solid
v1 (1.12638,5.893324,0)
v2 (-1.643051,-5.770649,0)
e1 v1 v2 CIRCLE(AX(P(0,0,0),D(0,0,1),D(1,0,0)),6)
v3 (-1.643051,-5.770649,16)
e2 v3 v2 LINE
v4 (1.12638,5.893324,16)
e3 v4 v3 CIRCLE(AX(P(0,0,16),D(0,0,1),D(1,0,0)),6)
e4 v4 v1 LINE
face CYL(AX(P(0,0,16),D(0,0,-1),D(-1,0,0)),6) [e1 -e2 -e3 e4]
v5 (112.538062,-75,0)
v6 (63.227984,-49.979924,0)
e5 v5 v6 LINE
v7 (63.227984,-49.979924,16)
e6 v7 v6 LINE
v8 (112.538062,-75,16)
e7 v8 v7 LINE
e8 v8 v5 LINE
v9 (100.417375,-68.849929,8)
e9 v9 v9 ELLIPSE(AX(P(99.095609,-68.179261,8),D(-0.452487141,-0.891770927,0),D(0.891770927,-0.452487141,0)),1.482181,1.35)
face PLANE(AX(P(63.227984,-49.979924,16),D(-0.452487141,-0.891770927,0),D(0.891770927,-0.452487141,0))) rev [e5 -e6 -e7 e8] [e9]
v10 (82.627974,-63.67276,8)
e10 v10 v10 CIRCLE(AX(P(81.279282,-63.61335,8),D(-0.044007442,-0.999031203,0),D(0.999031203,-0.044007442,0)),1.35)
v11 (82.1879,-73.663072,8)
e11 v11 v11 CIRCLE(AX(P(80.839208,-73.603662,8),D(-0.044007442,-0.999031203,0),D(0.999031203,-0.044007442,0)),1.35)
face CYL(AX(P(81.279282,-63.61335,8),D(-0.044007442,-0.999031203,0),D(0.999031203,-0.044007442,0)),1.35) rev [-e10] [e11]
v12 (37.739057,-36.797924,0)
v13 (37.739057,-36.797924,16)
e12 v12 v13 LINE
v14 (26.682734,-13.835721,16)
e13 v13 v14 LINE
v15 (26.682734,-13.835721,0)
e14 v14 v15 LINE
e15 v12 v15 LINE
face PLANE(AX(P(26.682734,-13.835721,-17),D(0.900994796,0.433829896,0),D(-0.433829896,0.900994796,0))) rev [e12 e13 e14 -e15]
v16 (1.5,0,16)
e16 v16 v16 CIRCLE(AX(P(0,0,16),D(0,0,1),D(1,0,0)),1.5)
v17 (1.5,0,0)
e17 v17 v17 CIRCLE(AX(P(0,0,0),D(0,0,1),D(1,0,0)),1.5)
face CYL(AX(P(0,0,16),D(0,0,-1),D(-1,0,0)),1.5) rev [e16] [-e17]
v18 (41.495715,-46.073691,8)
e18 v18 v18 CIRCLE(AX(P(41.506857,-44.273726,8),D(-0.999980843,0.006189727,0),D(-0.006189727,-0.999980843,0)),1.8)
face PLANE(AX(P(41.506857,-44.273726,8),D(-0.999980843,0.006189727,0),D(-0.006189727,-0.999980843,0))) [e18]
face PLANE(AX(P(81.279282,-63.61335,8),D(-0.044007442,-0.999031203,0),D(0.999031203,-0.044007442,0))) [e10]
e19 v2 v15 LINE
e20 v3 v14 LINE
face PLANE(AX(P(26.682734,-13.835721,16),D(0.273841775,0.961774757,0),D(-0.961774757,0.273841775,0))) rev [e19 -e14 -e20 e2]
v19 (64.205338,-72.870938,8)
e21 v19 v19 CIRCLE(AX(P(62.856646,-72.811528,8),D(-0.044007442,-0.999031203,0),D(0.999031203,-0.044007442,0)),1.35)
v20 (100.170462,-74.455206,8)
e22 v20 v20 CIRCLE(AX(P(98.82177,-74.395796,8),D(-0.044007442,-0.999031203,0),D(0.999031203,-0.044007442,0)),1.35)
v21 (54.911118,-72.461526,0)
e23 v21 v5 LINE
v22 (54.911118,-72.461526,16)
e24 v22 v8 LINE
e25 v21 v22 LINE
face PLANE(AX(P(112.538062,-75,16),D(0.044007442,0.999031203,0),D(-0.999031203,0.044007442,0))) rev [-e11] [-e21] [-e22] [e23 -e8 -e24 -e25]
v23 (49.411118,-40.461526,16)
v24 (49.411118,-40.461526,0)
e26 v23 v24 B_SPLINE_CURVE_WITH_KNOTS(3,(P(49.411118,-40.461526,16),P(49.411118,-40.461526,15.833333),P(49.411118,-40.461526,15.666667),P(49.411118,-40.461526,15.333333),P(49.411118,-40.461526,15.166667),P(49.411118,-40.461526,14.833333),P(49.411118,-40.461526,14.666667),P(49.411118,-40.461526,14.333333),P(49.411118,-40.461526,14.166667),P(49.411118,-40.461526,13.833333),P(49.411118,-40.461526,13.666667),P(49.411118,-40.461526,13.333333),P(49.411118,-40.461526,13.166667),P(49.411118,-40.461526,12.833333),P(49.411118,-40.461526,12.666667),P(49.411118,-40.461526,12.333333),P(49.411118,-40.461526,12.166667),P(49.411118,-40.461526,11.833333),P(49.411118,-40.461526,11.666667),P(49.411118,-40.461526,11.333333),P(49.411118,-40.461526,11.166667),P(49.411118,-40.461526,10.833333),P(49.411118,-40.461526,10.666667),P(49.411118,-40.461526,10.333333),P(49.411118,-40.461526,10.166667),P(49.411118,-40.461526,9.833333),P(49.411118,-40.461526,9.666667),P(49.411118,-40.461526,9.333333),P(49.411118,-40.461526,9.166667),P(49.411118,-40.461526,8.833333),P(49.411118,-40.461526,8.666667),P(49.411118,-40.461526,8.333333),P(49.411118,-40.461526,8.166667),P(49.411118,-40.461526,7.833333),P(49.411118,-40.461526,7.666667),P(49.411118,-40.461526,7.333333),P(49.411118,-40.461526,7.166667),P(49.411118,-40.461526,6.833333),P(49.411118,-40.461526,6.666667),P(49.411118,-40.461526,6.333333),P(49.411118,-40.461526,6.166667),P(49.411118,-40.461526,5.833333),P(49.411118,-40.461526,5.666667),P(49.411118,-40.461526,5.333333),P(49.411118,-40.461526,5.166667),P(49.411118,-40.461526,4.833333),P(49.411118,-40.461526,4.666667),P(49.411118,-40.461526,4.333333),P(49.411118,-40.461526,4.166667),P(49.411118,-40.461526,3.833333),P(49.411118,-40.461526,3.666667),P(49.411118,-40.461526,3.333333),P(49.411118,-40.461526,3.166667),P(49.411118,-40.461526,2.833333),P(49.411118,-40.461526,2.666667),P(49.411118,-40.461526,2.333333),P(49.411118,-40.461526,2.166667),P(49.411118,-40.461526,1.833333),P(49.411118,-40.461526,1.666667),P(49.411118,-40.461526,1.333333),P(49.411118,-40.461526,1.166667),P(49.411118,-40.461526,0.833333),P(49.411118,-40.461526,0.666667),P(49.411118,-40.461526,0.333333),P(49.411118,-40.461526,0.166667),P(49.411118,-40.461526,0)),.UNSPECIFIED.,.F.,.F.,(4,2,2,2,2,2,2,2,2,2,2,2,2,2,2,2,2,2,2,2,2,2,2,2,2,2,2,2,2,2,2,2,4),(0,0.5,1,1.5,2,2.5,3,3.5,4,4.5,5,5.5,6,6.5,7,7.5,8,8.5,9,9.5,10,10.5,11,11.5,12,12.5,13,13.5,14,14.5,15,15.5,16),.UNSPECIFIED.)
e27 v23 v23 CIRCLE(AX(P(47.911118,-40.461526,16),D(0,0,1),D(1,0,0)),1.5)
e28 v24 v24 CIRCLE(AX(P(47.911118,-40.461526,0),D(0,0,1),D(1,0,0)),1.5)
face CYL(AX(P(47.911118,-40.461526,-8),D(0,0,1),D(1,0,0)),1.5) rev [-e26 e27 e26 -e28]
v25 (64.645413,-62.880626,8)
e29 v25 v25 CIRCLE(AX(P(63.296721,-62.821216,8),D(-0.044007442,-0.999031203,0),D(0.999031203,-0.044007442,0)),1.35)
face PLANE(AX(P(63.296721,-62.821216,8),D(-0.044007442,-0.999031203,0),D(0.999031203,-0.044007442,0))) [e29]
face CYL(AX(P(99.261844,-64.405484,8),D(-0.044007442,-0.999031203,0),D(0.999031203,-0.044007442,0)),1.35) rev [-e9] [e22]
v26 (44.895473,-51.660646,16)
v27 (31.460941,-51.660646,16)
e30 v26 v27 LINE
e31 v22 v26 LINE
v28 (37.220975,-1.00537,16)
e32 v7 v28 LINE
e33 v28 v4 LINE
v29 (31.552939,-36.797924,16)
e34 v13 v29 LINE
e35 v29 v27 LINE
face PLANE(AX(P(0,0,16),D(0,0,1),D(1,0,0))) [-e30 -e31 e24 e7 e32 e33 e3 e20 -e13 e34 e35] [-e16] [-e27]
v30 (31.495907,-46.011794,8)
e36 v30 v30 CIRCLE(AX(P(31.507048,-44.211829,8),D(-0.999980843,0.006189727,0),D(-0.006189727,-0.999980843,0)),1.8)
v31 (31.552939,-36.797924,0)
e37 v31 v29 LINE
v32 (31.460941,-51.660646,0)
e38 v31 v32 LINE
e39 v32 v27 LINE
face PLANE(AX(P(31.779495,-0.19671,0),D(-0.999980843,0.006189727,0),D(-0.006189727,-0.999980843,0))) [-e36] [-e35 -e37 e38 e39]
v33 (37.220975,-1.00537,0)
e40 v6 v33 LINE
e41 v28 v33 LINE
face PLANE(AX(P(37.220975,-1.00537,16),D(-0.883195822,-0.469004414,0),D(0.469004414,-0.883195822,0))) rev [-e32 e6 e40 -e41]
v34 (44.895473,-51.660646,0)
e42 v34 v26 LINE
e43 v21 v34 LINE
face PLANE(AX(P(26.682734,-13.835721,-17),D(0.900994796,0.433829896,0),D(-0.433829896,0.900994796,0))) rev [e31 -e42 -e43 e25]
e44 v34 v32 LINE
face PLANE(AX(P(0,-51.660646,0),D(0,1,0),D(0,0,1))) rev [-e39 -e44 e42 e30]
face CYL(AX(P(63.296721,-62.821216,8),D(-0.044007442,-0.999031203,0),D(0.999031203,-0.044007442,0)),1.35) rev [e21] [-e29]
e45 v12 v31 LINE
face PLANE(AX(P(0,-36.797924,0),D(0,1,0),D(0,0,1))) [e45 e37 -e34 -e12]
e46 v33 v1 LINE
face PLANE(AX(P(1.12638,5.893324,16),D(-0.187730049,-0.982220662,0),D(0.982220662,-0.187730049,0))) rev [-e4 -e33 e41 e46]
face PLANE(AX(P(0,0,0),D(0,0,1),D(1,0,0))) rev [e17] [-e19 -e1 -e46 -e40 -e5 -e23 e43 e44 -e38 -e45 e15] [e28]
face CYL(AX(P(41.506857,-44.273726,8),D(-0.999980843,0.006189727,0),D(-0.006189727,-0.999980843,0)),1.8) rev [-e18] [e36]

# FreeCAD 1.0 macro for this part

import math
import FreeCAD as App
import Part
import Sketcher

doc = App.newDocument("Part")
body = doc.addObject("PartDesign::Body", "Body")

# Sketch on XY plane
sketch1 = doc.addObject("Sketcher::SketchObject", "Sketch")
body.addObject(sketch1)
sketch1.AttachmentSupport = (doc.XY_Plane, [""])
sketch1.MapMode = "FlatFace"
sketch1.addGeometry(Part.LineSegment(App.Vector(37.220975, -1.00537, 0), App.Vector(1.12638, 5.893324, 0)), False)
sketch1.addGeometry(Part.ArcOfCircle(Part.Circle(App.Vector(0, 0, 0), App.Vector(0, 0, 1), 6), math.radians(79.179658), math.radians(254.106997)), False)
sketch1.addGeometry(Part.LineSegment(App.Vector(-1.643051, -5.770649, 0), App.Vector(26.682734, -13.835721, 0)), False)
sketch1.addGeometry(Part.LineSegment(App.Vector(26.682734, -13.835721, 0), App.Vector(49.915442, -64.887383, 0)), False)
sketch1.addGeometry(Part.LineSegment(App.Vector(49.915442, -64.887383, 0), App.Vector(53.330617, -72.391905, 0)), False)
sketch1.addGeometry(Part.LineSegment(App.Vector(53.330617, -72.391905, 0), App.Vector(112.538062, -75, 0)), False)
sketch1.addGeometry(Part.LineSegment(App.Vector(112.538062, -75, 0), App.Vector(63.227984, -49.979924, 0)), False)
sketch1.addGeometry(Part.LineSegment(App.Vector(63.227984, -49.979924, 0), App.Vector(37.220975, -1.00537, 0)), False)
sketch1.addGeometry(Part.Circle(App.Vector(0, 0, 0), App.Vector(0, 0, 1), 1.5), False)
sketch1.addConstraint(Sketcher.Constraint("Tangent", 0, 2, 1, 1))
sketch1.addConstraint(Sketcher.Constraint("Tangent", 1, 2, 2, 1))
sketch1.addConstraint(Sketcher.Constraint("Coincident", 2, 2, 3, 1))
sketch1.addConstraint(Sketcher.Constraint("Coincident", 3, 2, 4, 1))
sketch1.addConstraint(Sketcher.Constraint("Coincident", 4, 2, 5, 1))
sketch1.addConstraint(Sketcher.Constraint("Coincident", 5, 2, 6, 1))
sketch1.addConstraint(Sketcher.Constraint("Coincident", 6, 2, 7, 1))
sketch1.addConstraint(Sketcher.Constraint("Coincident", 7, 2, 0, 1))
sketch1.addConstraint(Sketcher.Constraint("Coincident", 1, 3, -1, 1))
sketch1.addConstraint(Sketcher.Constraint("Coincident", 8, 3, -1, 1))
sketch1.addConstraint(Sketcher.Constraint("Parallel", 3, 4))
sketch1.addConstraint(Sketcher.Constraint("Diameter", 8, 3.0))
sketch1.addConstraint(Sketcher.Constraint("Radius", 1, 6.0))
sketch1.addConstraint(Sketcher.Constraint("DistanceY", 5, 2, -1, 1, 75.0))
sketch1.addConstraint(Sketcher.Constraint("Distance", 0, 36.747949))
sketch1.addConstraint(Sketcher.Constraint("Distance", 3, 56.08949))
sketch1.addConstraint(Sketcher.Constraint("Distance", 5, 59.26486))
sketch1.addConstraint(Sketcher.Constraint("DistanceX", -1, 1, 0, 2, 1.12638))
sketch1.addConstraint(Sketcher.Constraint("DistanceX", 1, 2, -1, 1, 1.643051))
sketch1.addConstraint(Sketcher.Constraint("DistanceY", 2, 2, -1, 1, 13.835721))
sketch1.addConstraint(Sketcher.Constraint("DistanceX", -1, 1, 3, 2, 49.915442))
sketch1.addConstraint(Sketcher.Constraint("DistanceX", -1, 1, 5, 2, 112.538062))
sketch1.addConstraint(Sketcher.Constraint("DistanceY", 3, 2, 6, 2, 14.907459))
sketch1.addConstraint(Sketcher.Constraint("DistanceX", 2, 2, 6, 2, 36.545251))
pad1 = doc.addObject("PartDesign::Pad", "Pad")
body.addObject(pad1)
pad1.Profile = sketch1
pad1.Length = 16

# Sketch on an angled plane
sketch2 = doc.addObject("Sketcher::SketchObject", "Sketch001")
body.addObject(sketch2)
sketch2.Placement = App.Placement(App.Vector(-3.079413, -69.907037, 0), App.Rotation(App.Vector(0.999031203, -0.044007442, 0), App.Vector(0, 0, 1), App.Vector(-0.044007442, -0.999031203, 0), "ZXY"))
sketch2.addGeometry(Part.Circle(App.Vector(66, 8, 0), App.Vector(0, 0, 1), 1.35), False)
sketch2.addGeometry(Part.Circle(App.Vector(102, 8, 0), App.Vector(0, 0, 1), 1.35), False)
sketch2.addGeometry(Part.Circle(App.Vector(84, 8, 0), App.Vector(0, 0, 1), 1.35), False)
sketch2.addConstraint(Sketcher.Constraint("Equal", 0, 1))
sketch2.addConstraint(Sketcher.Constraint("Equal", 1, 2))
sketch2.addConstraint(Sketcher.Constraint("Horizontal", 0, 3, 1, 3))
sketch2.addConstraint(Sketcher.Constraint("Horizontal", 1, 3, 2, 3))
sketch2.addConstraint(Sketcher.Constraint("Diameter", 0, 2.7))
sketch2.addConstraint(Sketcher.Constraint("DistanceX", -1, 1, 0, 3, 66.0))
sketch2.addConstraint(Sketcher.Constraint("DistanceY", -1, 1, 0, 3, 8.0))
sketch2.addConstraint(Sketcher.Constraint("DistanceX", -1, 1, 1, 3, 102.0))
sketch2.addConstraint(Sketcher.Constraint("DistanceX", -1, 1, 2, 3, 84.0))
pocket1 = doc.addObject("PartDesign::Pocket", "Pocket")
body.addObject(pocket1)
pocket1.Profile = sketch2
pocket1.Length = 10

# Sketch on XY plane
sketch3 = doc.addObject("Sketcher::SketchObject", "Sketch002")
body.addObject(sketch3)
sketch3.AttachmentSupport = (doc.XY_Plane, [""])
sketch3.MapMode = "FlatFace"
sketch3.AttachmentOffset = App.Placement(App.Vector(0, 0, 16), App.Rotation())
sketch3.addGeometry(Part.LineSegment(App.Vector(54.911118, -72.461526, 0), App.Vector(26.682734, -13.835721, 0)), False)
sketch3.addGeometry(Part.LineSegment(App.Vector(26.682734, -13.835721, 0), App.Vector(53.330617, -72.391905, 0)), False)
sketch3.addGeometry(Part.LineSegment(App.Vector(53.330617, -72.391905, 0), App.Vector(54.911118, -72.461526, 0)), False)
sketch3.addConstraint(Sketcher.Constraint("Coincident", 0, 2, 1, 1))
sketch3.addConstraint(Sketcher.Constraint("Coincident", 1, 2, 2, 1))
sketch3.addConstraint(Sketcher.Constraint("Coincident", 2, 2, 0, 1))
sketch3.addConstraint(Sketcher.Constraint("DistanceX", 1, 2, 2, 2, 1.580501))
sketch3.addConstraint(Sketcher.Constraint("DistanceY", 0, 2, -1, 1, 13.835721))
sketch3.addConstraint(Sketcher.Constraint("DistanceY", 2, 2, 1, 2, 0.069621))
sketch3.addConstraint(Sketcher.Constraint("Distance", 0, 65.067862))
sketch3.addConstraint(Sketcher.Constraint("Distance", 1, 64.334566))
sketch3.addConstraint(Sketcher.Constraint("DistanceX", -1, 1, 0, 2, 26.682734))
pocket2 = doc.addObject("PartDesign::Pocket", "Pocket001")
body.addObject(pocket2)
pocket2.Profile = sketch3
pocket2.Length = 33

# Sketch on XY plane
sketch4 = doc.addObject("Sketcher::SketchObject", "Sketch003")
body.addObject(sketch4)
sketch4.AttachmentSupport = (doc.XY_Plane, [""])
sketch4.MapMode = "FlatFace"
sketch4.AttachmentOffset = App.Placement(App.Vector(0, 0, 16), App.Rotation())
sketch4.addGeometry(Part.LineSegment(App.Vector(44.895473, -51.660646, 0), App.Vector(37.739057, -36.797924, 0)), False)
sketch4.addGeometry(Part.LineSegment(App.Vector(37.739057, -36.797924, 0), App.Vector(31.552939, -36.797924, 0)), False)
sketch4.addGeometry(Part.LineSegment(App.Vector(31.552939, -36.797924, 0), App.Vector(31.460941, -51.660646, 0)), False)
sketch4.addGeometry(Part.LineSegment(App.Vector(31.460941, -51.660646, 0), App.Vector(44.895473, -51.660646, 0)), False)
sketch4.addConstraint(Sketcher.Constraint("Coincident", 0, 2, 1, 1))
sketch4.addConstraint(Sketcher.Constraint("Coincident", 1, 2, 2, 1))
sketch4.addConstraint(Sketcher.Constraint("Coincident", 2, 2, 3, 1))
sketch4.addConstraint(Sketcher.Constraint("Coincident", 3, 2, 0, 1))
sketch4.addConstraint(Sketcher.Constraint("Horizontal", 1))
sketch4.addConstraint(Sketcher.Constraint("Horizontal", 3))
sketch4.addConstraint(Sketcher.Constraint("DistanceX", 3, 1, 3, 2, 13.434532))
sketch4.addConstraint(Sketcher.Constraint("DistanceX", 1, 2, 1, 1, 6.186118))
sketch4.addConstraint(Sketcher.Constraint("DistanceX", -1, 1, 1, 2, 31.552939))
sketch4.addConstraint(Sketcher.Constraint("DistanceX", -1, 1, 2, 2, 31.460941))
sketch4.addConstraint(Sketcher.Constraint("Distance", 0, 16.495903))
sketch4.addConstraint(Sketcher.Constraint("DistanceY", 0, 2, -1, 1, 36.797924))
pad2 = doc.addObject("PartDesign::Pad", "Pad001")
body.addObject(pad2)
pad2.Profile = sketch4
pad2.Length = 16
pad2.Reversed = True

# Sketch on XY plane
sketch5 = doc.addObject("Sketcher::SketchObject", "Sketch004")
body.addObject(sketch5)
sketch5.AttachmentSupport = (doc.XY_Plane, [""])
sketch5.MapMode = "FlatFace"
sketch5.AttachmentOffset = App.Placement(App.Vector(0, 0, 16), App.Rotation())
sketch5.addGeometry(Part.Circle(App.Vector(47.911118, -40.461526, 0), App.Vector(0, 0, 1), 1.5), False)
sketch5.addConstraint(Sketcher.Constraint("Diameter", 0, 3.0))
sketch5.addConstraint(Sketcher.Constraint("DistanceX", -1, 1, 0, 3, 47.911118))
sketch5.addConstraint(Sketcher.Constraint("DistanceY", 0, 3, -1, 1, 40.461526))
pocket3 = doc.addObject("PartDesign::Pocket", "Pocket002")
body.addObject(pocket3)
pocket3.Profile = sketch5
pocket3.Length = 24

# Sketch on an angled plane
sketch6 = doc.addObject("Sketcher::SketchObject", "Sketch005")
body.addObject(sketch6)
sketch6.Placement = App.Placement(App.Vector(31.779495, -0.19671, 0), App.Rotation(App.Vector(0, 0, 1), App.Vector(0.006189727, 0.999980843, 0), App.Vector(-0.999980843, 0.006189727, 0), "ZXY"))
sketch6.addGeometry(Part.Circle(App.Vector(8, -44.015962, 0), App.Vector(0, 0, 1), 1.8), False)
sketch6.addConstraint(Sketcher.Constraint("Diameter", 0, 3.6))
sketch6.addConstraint(Sketcher.Constraint("DistanceX", -1, 1, 0, 3, 8.0))
sketch6.addConstraint(Sketcher.Constraint("DistanceY", 0, 3, -1, 1, 44.015962))
pocket4 = doc.addObject("PartDesign::Pocket", "Pocket003")
body.addObject(pocket4)
pocket4.Profile = sketch6
pocket4.Length = 10

doc.recompute()
